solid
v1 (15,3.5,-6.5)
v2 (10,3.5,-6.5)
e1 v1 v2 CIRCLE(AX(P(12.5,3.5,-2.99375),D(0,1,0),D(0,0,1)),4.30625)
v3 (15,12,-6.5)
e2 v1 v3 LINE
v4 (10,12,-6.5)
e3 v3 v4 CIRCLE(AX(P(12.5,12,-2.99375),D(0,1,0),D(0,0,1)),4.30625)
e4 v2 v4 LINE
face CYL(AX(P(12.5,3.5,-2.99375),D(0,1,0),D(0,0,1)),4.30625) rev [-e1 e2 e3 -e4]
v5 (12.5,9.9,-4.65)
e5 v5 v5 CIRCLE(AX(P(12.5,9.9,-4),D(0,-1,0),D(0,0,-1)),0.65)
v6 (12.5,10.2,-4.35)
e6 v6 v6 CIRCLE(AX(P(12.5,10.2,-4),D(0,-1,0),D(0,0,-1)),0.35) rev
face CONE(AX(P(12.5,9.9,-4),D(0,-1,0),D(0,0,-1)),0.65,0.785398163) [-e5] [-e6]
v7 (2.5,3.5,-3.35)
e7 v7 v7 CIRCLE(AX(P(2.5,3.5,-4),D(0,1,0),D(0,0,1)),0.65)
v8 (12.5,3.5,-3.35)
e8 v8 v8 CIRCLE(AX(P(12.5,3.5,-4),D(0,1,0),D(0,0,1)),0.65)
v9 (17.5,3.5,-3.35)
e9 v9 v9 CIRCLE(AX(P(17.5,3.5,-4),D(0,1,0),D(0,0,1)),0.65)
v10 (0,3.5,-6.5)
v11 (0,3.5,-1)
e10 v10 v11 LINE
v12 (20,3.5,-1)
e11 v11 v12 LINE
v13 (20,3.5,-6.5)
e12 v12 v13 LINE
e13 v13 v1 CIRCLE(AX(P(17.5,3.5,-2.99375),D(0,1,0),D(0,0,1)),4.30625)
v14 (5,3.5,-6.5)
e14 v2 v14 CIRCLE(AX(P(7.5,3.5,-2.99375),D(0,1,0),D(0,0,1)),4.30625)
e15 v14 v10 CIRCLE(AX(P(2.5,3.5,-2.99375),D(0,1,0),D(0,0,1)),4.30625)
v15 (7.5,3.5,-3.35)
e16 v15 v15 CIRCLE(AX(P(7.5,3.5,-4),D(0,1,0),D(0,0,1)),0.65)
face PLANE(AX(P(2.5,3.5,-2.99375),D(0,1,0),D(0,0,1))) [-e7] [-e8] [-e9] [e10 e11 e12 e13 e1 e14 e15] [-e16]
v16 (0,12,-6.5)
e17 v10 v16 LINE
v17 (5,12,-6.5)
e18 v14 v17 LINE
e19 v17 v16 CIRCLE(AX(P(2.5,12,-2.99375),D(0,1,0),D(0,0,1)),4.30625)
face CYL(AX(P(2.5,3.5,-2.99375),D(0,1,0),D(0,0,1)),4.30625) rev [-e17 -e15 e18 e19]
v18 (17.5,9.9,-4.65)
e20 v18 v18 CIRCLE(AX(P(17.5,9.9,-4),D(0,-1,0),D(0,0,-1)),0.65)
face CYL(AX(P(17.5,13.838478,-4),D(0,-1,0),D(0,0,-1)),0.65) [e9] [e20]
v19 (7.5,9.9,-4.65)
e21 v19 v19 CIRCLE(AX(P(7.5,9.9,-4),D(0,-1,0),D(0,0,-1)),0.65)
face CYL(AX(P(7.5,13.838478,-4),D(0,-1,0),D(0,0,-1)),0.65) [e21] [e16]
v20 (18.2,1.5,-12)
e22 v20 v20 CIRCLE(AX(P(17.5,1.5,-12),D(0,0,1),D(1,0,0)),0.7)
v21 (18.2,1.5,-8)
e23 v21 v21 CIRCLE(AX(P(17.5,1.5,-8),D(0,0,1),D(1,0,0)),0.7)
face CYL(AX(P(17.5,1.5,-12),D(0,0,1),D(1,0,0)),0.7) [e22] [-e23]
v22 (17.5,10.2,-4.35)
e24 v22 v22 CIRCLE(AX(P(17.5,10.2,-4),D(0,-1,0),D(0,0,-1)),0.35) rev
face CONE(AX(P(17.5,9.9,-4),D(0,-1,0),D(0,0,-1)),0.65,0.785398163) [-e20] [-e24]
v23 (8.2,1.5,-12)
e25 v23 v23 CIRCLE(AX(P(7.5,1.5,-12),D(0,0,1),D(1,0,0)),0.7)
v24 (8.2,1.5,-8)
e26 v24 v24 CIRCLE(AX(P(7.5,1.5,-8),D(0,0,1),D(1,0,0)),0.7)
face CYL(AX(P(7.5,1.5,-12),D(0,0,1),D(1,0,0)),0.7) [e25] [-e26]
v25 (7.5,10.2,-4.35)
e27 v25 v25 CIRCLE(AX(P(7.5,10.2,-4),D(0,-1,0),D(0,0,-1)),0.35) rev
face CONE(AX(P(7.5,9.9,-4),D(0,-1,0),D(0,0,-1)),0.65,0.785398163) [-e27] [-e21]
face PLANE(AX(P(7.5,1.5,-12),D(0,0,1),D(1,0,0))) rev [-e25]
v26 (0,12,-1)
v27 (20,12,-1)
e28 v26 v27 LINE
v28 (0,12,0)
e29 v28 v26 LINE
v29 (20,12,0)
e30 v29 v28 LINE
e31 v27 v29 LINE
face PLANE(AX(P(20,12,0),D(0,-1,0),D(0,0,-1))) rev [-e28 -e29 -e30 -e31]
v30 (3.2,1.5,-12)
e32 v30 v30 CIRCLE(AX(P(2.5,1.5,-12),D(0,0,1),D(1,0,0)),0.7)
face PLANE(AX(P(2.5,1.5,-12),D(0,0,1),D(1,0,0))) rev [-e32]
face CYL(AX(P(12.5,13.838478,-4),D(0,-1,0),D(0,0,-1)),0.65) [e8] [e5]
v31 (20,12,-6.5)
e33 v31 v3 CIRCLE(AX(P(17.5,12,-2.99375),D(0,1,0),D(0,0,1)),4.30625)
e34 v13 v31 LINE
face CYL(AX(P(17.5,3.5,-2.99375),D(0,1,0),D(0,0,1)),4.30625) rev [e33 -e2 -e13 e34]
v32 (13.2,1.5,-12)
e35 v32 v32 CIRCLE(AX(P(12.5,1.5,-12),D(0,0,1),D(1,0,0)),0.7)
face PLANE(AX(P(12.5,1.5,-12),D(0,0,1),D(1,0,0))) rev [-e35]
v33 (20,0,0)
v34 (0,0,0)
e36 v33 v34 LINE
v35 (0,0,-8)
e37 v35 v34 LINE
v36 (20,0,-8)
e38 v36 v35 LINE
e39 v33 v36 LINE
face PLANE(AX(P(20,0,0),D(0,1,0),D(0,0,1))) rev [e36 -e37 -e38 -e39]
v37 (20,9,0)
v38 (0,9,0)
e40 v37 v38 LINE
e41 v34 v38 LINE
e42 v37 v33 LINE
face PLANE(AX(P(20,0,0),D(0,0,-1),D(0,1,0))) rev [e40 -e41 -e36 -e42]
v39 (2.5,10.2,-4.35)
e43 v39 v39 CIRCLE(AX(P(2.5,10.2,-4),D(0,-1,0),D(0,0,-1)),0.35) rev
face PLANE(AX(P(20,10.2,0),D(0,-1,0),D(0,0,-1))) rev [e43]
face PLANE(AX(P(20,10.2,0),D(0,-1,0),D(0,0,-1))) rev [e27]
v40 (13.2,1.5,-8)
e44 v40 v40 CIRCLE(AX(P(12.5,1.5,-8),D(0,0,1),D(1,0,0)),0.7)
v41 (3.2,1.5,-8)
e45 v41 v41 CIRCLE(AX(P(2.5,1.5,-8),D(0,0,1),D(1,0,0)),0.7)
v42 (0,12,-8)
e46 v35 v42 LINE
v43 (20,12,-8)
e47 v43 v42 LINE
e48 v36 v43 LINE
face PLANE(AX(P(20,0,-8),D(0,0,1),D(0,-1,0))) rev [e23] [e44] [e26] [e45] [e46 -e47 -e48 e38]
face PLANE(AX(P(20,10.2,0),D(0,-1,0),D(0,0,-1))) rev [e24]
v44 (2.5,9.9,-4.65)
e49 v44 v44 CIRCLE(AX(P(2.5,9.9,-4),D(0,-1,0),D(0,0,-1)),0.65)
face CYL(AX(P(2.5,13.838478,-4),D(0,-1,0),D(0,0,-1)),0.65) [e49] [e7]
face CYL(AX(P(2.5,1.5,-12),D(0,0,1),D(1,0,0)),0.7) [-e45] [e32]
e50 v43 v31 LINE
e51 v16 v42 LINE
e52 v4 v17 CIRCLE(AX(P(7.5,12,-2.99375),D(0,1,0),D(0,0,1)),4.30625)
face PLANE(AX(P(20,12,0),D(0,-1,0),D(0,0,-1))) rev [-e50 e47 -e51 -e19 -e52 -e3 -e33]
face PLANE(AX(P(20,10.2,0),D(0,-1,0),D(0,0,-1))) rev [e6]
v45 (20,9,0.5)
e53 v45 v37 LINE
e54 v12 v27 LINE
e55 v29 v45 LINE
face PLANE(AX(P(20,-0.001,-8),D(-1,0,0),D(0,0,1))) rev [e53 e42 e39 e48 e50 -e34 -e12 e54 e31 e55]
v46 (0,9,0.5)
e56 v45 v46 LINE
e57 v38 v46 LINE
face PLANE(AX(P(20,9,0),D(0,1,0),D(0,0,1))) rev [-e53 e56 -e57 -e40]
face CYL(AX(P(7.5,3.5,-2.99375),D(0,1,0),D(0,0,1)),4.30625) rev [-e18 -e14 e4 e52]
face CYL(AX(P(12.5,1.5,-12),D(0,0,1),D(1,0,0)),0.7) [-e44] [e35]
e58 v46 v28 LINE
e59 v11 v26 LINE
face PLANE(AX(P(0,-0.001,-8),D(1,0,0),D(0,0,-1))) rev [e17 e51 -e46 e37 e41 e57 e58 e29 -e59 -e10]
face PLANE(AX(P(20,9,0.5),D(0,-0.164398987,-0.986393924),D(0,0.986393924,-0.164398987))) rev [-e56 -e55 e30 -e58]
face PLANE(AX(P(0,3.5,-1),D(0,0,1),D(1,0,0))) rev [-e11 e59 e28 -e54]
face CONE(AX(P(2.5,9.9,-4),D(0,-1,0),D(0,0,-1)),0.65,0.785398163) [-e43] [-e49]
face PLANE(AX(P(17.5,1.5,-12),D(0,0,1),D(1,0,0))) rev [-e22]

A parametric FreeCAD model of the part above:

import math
import FreeCAD as App
import Part
import Sketcher


def edges_at(feature, points):
    """Names of the edges that pass closest to the given points."""
    edges = feature.Shape.Edges
    near = lambda p: min(range(len(edges)), key=lambda i: edges[i].distToShape(Part.Vertex(*p))[0])
    return sorted({f"Edge{near(p) + 1}" for p in points})

doc = App.newDocument("Part")
body = doc.addObject("PartDesign::Body", "Body")

# Sketch on YZ plane
sketch1 = body.newObject("Sketcher::SketchObject", "Sketch")
sketch1.AttachmentSupport = (doc.getObject("YZ_Plane"), [""])
sketch1.MapMode = "FlatFace"
sketch1.addGeometry([
    Part.LineSegment(App.Vector(9, 0.5, 0), App.Vector(9, 0, 0)),  # 0
    Part.LineSegment(App.Vector(9, 0, 0), App.Vector(0, 0, 0)),  # 1
    Part.LineSegment(App.Vector(0, 0, 0), App.Vector(0, -8, 0)),  # 2
    Part.LineSegment(App.Vector(0, -8, 0), App.Vector(12, -8, 0)),  # 3
    Part.LineSegment(App.Vector(12, -8, 0), App.Vector(12, 0, 0)),  # 4
    Part.LineSegment(App.Vector(12, 0, 0), App.Vector(9, 0.5, 0)),  # 5
], False)
sketch1.addConstraint([
    Sketcher.Constraint("Coincident", 0, 2, 1, 1),
    Sketcher.Constraint("Coincident", 1, 2, 2, 1),
    Sketcher.Constraint("Coincident", 2, 2, 3, 1),
    Sketcher.Constraint("Coincident", 3, 2, 4, 1),
    Sketcher.Constraint("Coincident", 4, 2, 5, 1),
    Sketcher.Constraint("Coincident", 5, 2, 0, 1),
    Sketcher.Constraint("Vertical", 0),
    Sketcher.Constraint("Horizontal", 1),
    Sketcher.Constraint("Vertical", 2),
    Sketcher.Constraint("Horizontal", 3),
    Sketcher.Constraint("Vertical", 4),
    Sketcher.Constraint("Coincident", 1, 2, -1, 1),
    Sketcher.Constraint("PointOnObject", 4, 2, -1),
    Sketcher.Constraint("DistanceX", 1, 2, 1, 1, 9.0),
    Sketcher.Constraint("DistanceX", 3, 1, 3, 2, 12.0),
    Sketcher.Constraint("DistanceY", 2, 2, 2, 1, 8.0),
    Sketcher.Constraint("DistanceY", 0, 2, 0, 1, 0.5),
])
pad1 = body.newObject("PartDesign::Pad", "Pad")
pad1.Profile = sketch1
pad1.Length = 20

# Sketch on XY plane
sketch2 = body.newObject("Sketcher::SketchObject", "Sketch001")
sketch2.AttachmentSupport = (doc.getObject("XY_Plane"), [""])
sketch2.MapMode = "FlatFace"
sketch2.AttachmentOffset = App.Placement(App.Vector(0, 0, -8), App.Rotation())
sketch2.addGeometry(Part.Circle(App.Vector(2.5, 1.5, 0), App.Vector(0, 0, 1), 0.7), False)
sketch2.addConstraint([
    Sketcher.Constraint("Diameter", 0, 1.4),
    Sketcher.Constraint("DistanceX", -1, 1, 0, 3, 2.5),
    Sketcher.Constraint("DistanceY", -1, 1, 0, 3, 1.5),
])
pad2 = body.newObject("PartDesign::Pad", "Pad001")
pad2.Profile = sketch2
pad2.Length = 4
pad2.Reversed = True

# Sketch on XZ plane
sketch3 = body.newObject("Sketcher::SketchObject", "Sketch002")
sketch3.AttachmentSupport = (doc.getObject("XZ_Plane"), [""])
sketch3.MapMode = "FlatFace"
sketch3.AttachmentOffset = App.Placement(App.Vector(0, 0, -12), App.Rotation())
sketch3.addGeometry([
    Part.LineSegment(App.Vector(0, -6.5, 0), App.Vector(0, -1, 0)),
    Part.LineSegment(App.Vector(0, -1, 0), App.Vector(5, -1, 0)),
    Part.LineSegment(App.Vector(5, -1, 0), App.Vector(5, -6.5, 0)),
    Part.ArcOfCircle(Part.Circle(App.Vector(2.5, -3, 0), App.Vector(0, 0, 1), 4.3), math.radians(-125), math.radians(-55)),
], False)
sketch3.addConstraint([
    Sketcher.Constraint("Coincident", 0, 2, 1, 1),
    Sketcher.Constraint("Coincident", 1, 2, 2, 1),
    Sketcher.Constraint("Coincident", 2, 2, 3, 2),
    Sketcher.Constraint("Coincident", 3, 1, 0, 1),
    Sketcher.Constraint("Vertical", 0),
    Sketcher.Constraint("Horizontal", 1),
    Sketcher.Constraint("Vertical", 2),
    Sketcher.Constraint("PointOnObject", 0, 2, -2),
    Sketcher.Constraint("Horizontal", 2, 2, 3, 1),
    Sketcher.Constraint("DistanceX", 1, 1, 1, 2, 5.0),
    Sketcher.Constraint("DistanceY", 0, 1, 0, 2, 5.5),
    Sketcher.Constraint("DistanceY", 0, 2, -1, 1, 1.0),
    Sketcher.Constraint("Radius", 3, 4.30625),
])
pocket1 = body.newObject("PartDesign::Pocket", "Pocket")
pocket1.Profile = sketch3
pocket1.Length = 8.5
pocket1.Reversed = True

# Sketch on XZ plane
sketch4 = body.newObject("Sketcher::SketchObject", "Sketch003")
sketch4.AttachmentSupport = (doc.getObject("XZ_Plane"), [""])
sketch4.MapMode = "FlatFace"
sketch4.AttachmentOffset = App.Placement(App.Vector(0, 0, -3.5), App.Rotation())
sketch4.addGeometry(Part.Circle(App.Vector(2.5, -4, 0), App.Vector(0, 0, 1), 0.7), False)
sketch4.addConstraint([
    Sketcher.Constraint("Diameter", 0, 1.3),
    Sketcher.Constraint("DistanceY", 0, 3, -1, 1, 4.0),
    Sketcher.Constraint("DistanceX", -1, 1, 0, 3, 2.5),
])
pad3 = body.newObject("PartDesign::Pad", "Pad002")
pad3.Profile = sketch4
pad3.Length = 6.7
pad3.Reversed = True
doc.recompute()

chamfer = body.newObject("PartDesign::Chamfer", "Chamfer")
chamfer.Base = (pad3, edges_at(pad3, [(2.5, 10.2, -3.35)]))
chamfer.Size = 0.3
doc.recompute()

linearpattern = body.newObject("PartDesign::LinearPattern", "LinearPattern")
linearpattern.Originals = [pad2, pocket1]
linearpattern.Direction = (doc.getObject("X_Axis"), [""])
linearpattern.Mode = "offset"
linearpattern.Offset = 5
linearpattern.Occurrences = 4
body.Tip = linearpattern
doc.recompute()

linearpattern2 = body.newObject("PartDesign::LinearPattern", "LinearPattern001")
linearpattern2.Originals = [pad3]
linearpattern2.Direction = (doc.getObject("X_Axis"), [""])
linearpattern2.Mode = "offset"
linearpattern2.Offset = 5
linearpattern2.Occurrences = 4
body.Tip = linearpattern2
doc.recompute()

chamfer2 = body.newObject("PartDesign::Chamfer", "Chamfer001")
chamfer2.Base = (linearpattern2, edges_at(linearpattern2, [(7.5, 10.2, -3.35), (12.5, 10.2, -3.35), (17.5, 10.2, -3.35)]))
chamfer2.Size = 0.3

# Sketch on YZ plane
sketch5 = body.newObject("Sketcher::SketchObject", "Sketch004")
sketch5.AttachmentSupport = (doc.getObject("YZ_Plane"), [""])
sketch5.MapMode = "FlatFace"
sketch5.AttachmentOffset = App.Placement(App.Vector(0, 0, 20), App.Rotation())
sketch5.addGeometry([
    Part.LineSegment(App.Vector(12, -8, 0), App.Vector(12, 0, 0)),  # 0
    Part.LineSegment(App.Vector(12, 0, 0), App.Vector(9, 0.5, 0)),  # 1
    Part.LineSegment(App.Vector(9, 0.5, 0), App.Vector(9, 0, 0)),  # 2
    Part.LineSegment(App.Vector(9, 0, 0), App.Vector(0, 0, 0)),  # 3
    Part.LineSegment(App.Vector(0, 0, 0), App.Vector(0, -8, 0)),  # 4
    Part.LineSegment(App.Vector(0, -8, 0), App.Vector(12, -8, 0)),  # 5
], False)
sketch5.addConstraint([
    Sketcher.Constraint("Coincident", 0, 2, 1, 1),
    Sketcher.Constraint("Coincident", 1, 2, 2, 1),
    Sketcher.Constraint("Coincident", 2, 2, 3, 1),
    Sketcher.Constraint("Coincident", 3, 2, 4, 1),
    Sketcher.Constraint("Coincident", 4, 2, 5, 1),
    Sketcher.Constraint("Coincident", 5, 2, 0, 1),
    Sketcher.Constraint("Vertical", 0),
    Sketcher.Constraint("Vertical", 2),
    Sketcher.Constraint("Horizontal", 3),
    Sketcher.Constraint("Vertical", 4),
    Sketcher.Constraint("Horizontal", 5),
    Sketcher.Constraint("Coincident", 3, 2, -1, 1),
    Sketcher.Constraint("PointOnObject", 0, 2, -1),
    Sketcher.Constraint("DistanceX", 3, 2, 3, 1, 9.0),
    Sketcher.Constraint("DistanceX", 5, 1, 5, 2, 12.0),
    Sketcher.Constraint("DistanceY", 0, 1, 0, 2, 8.0),
    Sketcher.Constraint("DistanceY", 2, 2, 2, 1, 0.5),
])
pad4 = body.newObject("PartDesign::Pad", "Pad003")
pad4.Profile = sketch5
pad4.Length = 0.5

# Sketch on YZ plane
sketch6 = body.newObject("Sketcher::SketchObject", "Sketch005")
sketch6.AttachmentSupport = (doc.getObject("YZ_Plane"), [""])
sketch6.MapMode = "FlatFace"
sketch6.addGeometry([
    Part.LineSegment(App.Vector(12, 0, 0), App.Vector(12, -8, 0)),  # 0
    Part.LineSegment(App.Vector(12, -8, 0), App.Vector(0, -8, 0)),  # 1
    Part.LineSegment(App.Vector(0, -8, 0), App.Vector(0, 0, 0)),  # 2
    Part.LineSegment(App.Vector(0, 0, 0), App.Vector(9, 0, 0)),  # 3
    Part.LineSegment(App.Vector(9, 0, 0), App.Vector(9, 0.5, 0)),  # 4
    Part.LineSegment(App.Vector(9, 0.5, 0), App.Vector(12, 0, 0)),  # 5
], False)
sketch6.addConstraint([
    Sketcher.Constraint("Coincident", 0, 2, 1, 1),
    Sketcher.Constraint("Coincident", 1, 2, 2, 1),
    Sketcher.Constraint("Coincident", 2, 2, 3, 1),
    Sketcher.Constraint("Coincident", 3, 2, 4, 1),
    Sketcher.Constraint("Coincident", 4, 2, 5, 1),
    Sketcher.Constraint("Coincident", 5, 2, 0, 1),
    Sketcher.Constraint("Vertical", 0),
    Sketcher.Constraint("Horizontal", 1),
    Sketcher.Constraint("Vertical", 2),
    Sketcher.Constraint("Horizontal", 3),
    Sketcher.Constraint("Vertical", 4),
    Sketcher.Constraint("Coincident", 2, 2, -1, 1),
    Sketcher.Constraint("PointOnObject", 5, 2, -1),
    Sketcher.Constraint("DistanceX", 1, 2, 1, 1, 12.0),
    Sketcher.Constraint("DistanceX", 3, 1, 3, 2, 9.0),
    Sketcher.Constraint("DistanceY", 0, 2, 0, 1, 8.0),
    Sketcher.Constraint("DistanceY", 4, 1, 4, 2, 0.5),
])
pad5 = body.newObject("PartDesign::Pad", "Pad004")
pad5.Profile = sketch6
pad5.Length = 0.5
pad5.Reversed = True

# Sketch on XZ plane
sketch7 = body.newObject("Sketcher::SketchObject", "Sketch006")
sketch7.AttachmentSupport = (doc.getObject("XZ_Plane"), [""])
sketch7.MapMode = "FlatFace"
sketch7.AttachmentOffset = App.Placement(App.Vector(0, 0, -12), App.Rotation())
sketch7.addGeometry([
    Part.LineSegment(App.Vector(20, -8, 0), App.Vector(20, 0.5, 0)),
    Part.LineSegment(App.Vector(20, 0.5, 0), App.Vector(20.5, 0.5, 0)),
    Part.LineSegment(App.Vector(20.5, 0.5, 0), App.Vector(20.5, -8, 0)),
    Part.LineSegment(App.Vector(20.5, -8, 0), App.Vector(20, -8, 0)),
], False)
sketch7.addConstraint([
    Sketcher.Constraint("Coincident", 0, 2, 1, 1),
    Sketcher.Constraint("Coincident", 1, 2, 2, 1),
    Sketcher.Constraint("Coincident", 2, 2, 3, 1),
    Sketcher.Constraint("Coincident", 3, 2, 0, 1),
    Sketcher.Constraint("Vertical", 0),
    Sketcher.Constraint("Horizontal", 1),
    Sketcher.Constraint("Vertical", 2),
    Sketcher.Constraint("Horizontal", 3),
    Sketcher.Constraint("DistanceX", 1, 1, 1, 2, 0.5),
    Sketcher.Constraint("DistanceY", 0, 1, 0, 2, 8.5),
    Sketcher.Constraint("DistanceX", -1, 1, 0, 2, 20.0),
    Sketcher.Constraint("DistanceY", 2, 2, -1, 1, 8.0),
])
pocket2 = body.newObject("PartDesign::Pocket", "Pocket001")
pocket2.Profile = sketch7
pocket2.Type = "UpToFirst"
pocket2.Reversed = True

# Sketch on XZ plane
sketch8 = body.newObject("Sketcher::SketchObject", "Sketch007")
sketch8.AttachmentSupport = (doc.getObject("XZ_Plane"), [""])
sketch8.MapMode = "FlatFace"
sketch8.AttachmentOffset = App.Placement(App.Vector(0, 0, -12), App.Rotation())
sketch8.addGeometry([
    Part.LineSegment(App.Vector(-0.5, -8, 0), App.Vector(-0.5, 0.5, 0)),
    Part.LineSegment(App.Vector(-0.5, 0.5, 0), App.Vector(0, 0.5, 0)),
    Part.LineSegment(App.Vector(0, 0.5, 0), App.Vector(0, -8, 0)),
    Part.LineSegment(App.Vector(0, -8, 0), App.Vector(-0.5, -8, 0)),
], False)
sketch8.addConstraint([
    Sketcher.Constraint("Coincident", 0, 2, 1, 1),
    Sketcher.Constraint("Coincident", 1, 2, 2, 1),
    Sketcher.Constraint("Coincident", 2, 2, 3, 1),
    Sketcher.Constraint("Coincident", 3, 2, 0, 1),
    Sketcher.Constraint("Vertical", 0),
    Sketcher.Constraint("Horizontal", 1),
    Sketcher.Constraint("Vertical", 2),
    Sketcher.Constraint("Horizontal", 3),
    Sketcher.Constraint("PointOnObject", 1, 2, -2),
    Sketcher.Constraint("DistanceX", 1, 1, 1, 2, 0.5),
    Sketcher.Constraint("DistanceY", 0, 1, 0, 2, 8.5),
    Sketcher.Constraint("DistanceY", 2, 2, -1, 1, 8.0),
])
pocket3 = body.newObject("PartDesign::Pocket", "Pocket002")
pocket3.Profile = sketch8
pocket3.Type = "UpToFirst"
pocket3.Reversed = True

doc.recompute()
